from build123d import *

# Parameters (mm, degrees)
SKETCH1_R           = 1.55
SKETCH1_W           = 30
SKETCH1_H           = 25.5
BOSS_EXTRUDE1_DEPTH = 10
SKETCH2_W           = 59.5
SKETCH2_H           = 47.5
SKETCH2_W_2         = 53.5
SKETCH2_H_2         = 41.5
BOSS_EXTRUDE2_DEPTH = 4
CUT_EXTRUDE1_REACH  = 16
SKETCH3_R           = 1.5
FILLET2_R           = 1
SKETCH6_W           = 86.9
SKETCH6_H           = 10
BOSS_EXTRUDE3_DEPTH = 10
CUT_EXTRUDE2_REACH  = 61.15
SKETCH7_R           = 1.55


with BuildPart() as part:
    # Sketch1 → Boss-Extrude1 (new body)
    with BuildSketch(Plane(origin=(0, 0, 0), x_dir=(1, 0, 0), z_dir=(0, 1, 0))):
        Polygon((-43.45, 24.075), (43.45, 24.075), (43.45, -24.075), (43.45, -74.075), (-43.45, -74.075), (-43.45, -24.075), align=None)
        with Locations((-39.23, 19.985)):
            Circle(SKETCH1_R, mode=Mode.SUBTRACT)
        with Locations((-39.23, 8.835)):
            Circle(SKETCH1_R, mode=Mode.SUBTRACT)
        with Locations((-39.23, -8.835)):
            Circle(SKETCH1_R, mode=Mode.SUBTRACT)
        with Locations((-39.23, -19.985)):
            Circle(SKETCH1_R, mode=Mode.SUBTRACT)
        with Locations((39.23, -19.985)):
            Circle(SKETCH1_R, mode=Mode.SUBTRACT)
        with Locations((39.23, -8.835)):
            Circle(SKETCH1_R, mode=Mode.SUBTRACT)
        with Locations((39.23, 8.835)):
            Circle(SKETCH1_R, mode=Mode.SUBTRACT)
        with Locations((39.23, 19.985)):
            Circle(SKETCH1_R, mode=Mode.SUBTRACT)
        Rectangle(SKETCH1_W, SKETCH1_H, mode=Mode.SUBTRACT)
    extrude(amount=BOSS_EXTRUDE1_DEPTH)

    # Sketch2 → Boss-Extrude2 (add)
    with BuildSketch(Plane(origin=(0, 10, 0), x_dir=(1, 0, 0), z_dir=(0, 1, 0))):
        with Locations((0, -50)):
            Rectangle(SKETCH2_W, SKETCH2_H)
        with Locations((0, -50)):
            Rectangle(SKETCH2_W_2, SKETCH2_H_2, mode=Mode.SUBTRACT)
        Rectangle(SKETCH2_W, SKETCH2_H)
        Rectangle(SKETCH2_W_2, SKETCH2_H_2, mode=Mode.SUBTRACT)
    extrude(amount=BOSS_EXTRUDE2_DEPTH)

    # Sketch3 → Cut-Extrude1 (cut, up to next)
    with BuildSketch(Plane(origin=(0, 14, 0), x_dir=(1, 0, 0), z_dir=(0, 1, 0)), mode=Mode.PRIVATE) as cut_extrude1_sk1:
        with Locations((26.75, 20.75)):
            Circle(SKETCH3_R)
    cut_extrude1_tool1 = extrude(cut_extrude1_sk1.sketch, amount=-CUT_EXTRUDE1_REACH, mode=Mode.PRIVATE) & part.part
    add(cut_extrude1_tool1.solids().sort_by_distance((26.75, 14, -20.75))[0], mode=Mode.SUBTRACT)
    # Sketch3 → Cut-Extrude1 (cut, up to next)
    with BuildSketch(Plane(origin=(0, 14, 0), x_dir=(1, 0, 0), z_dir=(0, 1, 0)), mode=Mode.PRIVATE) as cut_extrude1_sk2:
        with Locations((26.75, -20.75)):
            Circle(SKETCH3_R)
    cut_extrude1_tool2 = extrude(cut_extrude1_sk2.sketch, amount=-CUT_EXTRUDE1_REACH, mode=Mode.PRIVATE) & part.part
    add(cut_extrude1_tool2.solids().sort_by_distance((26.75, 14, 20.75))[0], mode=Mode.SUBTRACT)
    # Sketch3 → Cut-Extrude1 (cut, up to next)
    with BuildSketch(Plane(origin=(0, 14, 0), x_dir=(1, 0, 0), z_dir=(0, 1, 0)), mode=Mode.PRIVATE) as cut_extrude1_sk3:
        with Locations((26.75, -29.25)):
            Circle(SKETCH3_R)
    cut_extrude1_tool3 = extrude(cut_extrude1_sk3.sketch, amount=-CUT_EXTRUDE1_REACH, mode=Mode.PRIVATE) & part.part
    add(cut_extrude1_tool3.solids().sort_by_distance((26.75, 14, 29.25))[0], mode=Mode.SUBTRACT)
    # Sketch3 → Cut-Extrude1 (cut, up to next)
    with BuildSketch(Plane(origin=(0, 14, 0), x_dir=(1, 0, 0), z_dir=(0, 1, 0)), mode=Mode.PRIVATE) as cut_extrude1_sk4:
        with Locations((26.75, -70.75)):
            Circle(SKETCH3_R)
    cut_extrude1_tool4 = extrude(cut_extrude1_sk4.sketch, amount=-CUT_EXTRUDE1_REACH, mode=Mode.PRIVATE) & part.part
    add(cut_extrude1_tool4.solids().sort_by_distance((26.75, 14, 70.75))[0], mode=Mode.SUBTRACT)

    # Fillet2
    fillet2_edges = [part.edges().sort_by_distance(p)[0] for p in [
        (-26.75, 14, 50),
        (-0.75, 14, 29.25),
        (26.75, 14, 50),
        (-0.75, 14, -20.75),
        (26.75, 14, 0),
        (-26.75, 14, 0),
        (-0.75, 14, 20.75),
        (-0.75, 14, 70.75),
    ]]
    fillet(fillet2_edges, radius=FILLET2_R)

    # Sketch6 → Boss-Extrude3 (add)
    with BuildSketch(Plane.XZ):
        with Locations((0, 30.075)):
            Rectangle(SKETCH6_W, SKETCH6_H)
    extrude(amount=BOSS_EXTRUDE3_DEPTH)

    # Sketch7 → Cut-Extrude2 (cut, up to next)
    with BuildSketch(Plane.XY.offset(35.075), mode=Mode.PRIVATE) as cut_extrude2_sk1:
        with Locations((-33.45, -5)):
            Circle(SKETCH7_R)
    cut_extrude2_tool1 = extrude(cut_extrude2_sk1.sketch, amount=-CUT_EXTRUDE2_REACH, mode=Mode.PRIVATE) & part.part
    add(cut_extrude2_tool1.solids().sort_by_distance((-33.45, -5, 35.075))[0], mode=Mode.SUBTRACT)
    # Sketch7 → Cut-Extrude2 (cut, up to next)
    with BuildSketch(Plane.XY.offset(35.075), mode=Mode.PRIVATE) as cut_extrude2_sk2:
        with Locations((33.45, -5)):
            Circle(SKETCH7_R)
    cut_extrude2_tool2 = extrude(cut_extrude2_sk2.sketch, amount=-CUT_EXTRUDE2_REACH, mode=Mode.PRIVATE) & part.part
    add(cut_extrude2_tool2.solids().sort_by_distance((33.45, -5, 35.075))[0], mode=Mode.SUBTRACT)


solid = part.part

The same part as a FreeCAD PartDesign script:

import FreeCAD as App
import Part
import Sketcher

V = App.Vector


def edges_at(feature, points):
    """Names of the edges that pass closest to the given points."""
    edges = feature.Shape.Edges
    near = lambda p: min(range(len(edges)), key=lambda i: edges[i].distToShape(Part.Vertex(*p))[0])
    return sorted({f"Edge{near(p) + 1}" for p in points})

doc = App.newDocument("Part")
body = doc.addObject("PartDesign::Body", "Body")

# Sketch on XZ plane
sketch1 = doc.addObject("Sketcher::SketchObject", "Sketch")
body.addObject(sketch1)
sketch1.AttachmentSupport = (doc.XZ_Plane, [""])
sketch1.MapMode = "FlatFace"
sketch1.addGeometry([
    Part.LineSegment(V(43.5, -24.1, 0), V(-43.5, -24.1, 0)),  # 0
    Part.LineSegment(V(-43.5, -24.1, 0), V(-43.5, 74.1, 0)),  # 1
    Part.LineSegment(V(-43.5, 74.1, 0), V(43.5, 74.1, 0)),  # 2
    Part.LineSegment(V(43.5, 74.1, 0), V(43.5, -24.1, 0)),  # 3
    Part.Circle(V(39.2, 20, 0), V(0, 0, 1), 1.6),  # 4
    Part.Circle(V(39.2, 8.8, 0), V(0, 0, 1), 1.6),  # 5
    Part.Circle(V(-39.2, 20, 0), V(0, 0, 1), 1.6),  # 6
    Part.LineSegment(V(-15, 12.8, 0), V(-15, -12.8, 0)),  # 7
    Part.LineSegment(V(-15, -12.8, 0), V(15, -12.8, 0)),  # 8
    Part.LineSegment(V(15, -12.8, 0), V(15, 12.8, 0)),  # 9
    Part.LineSegment(V(15, 12.8, 0), V(-15, 12.8, 0)),  # 10
    Part.Circle(V(-39.2, 8.8, 0), V(0, 0, 1), 1.6),  # 11
    Part.Circle(V(39.2, -8.8, 0), V(0, 0, 1), 1.6),  # 12
    Part.Circle(V(39.2, -20, 0), V(0, 0, 1), 1.6),  # 13
    Part.Circle(V(-39.2, -8.8, 0), V(0, 0, 1), 1.6),  # 14
    Part.Circle(V(-39.2, -20, 0), V(0, 0, 1), 1.6),  # 15
], False)
sketch1.addConstraint([
    Sketcher.Constraint("Coincident", 0, 2, 1, 1),
    Sketcher.Constraint("Coincident", 1, 2, 2, 1),
    Sketcher.Constraint("Coincident", 2, 2, 3, 1),
    Sketcher.Constraint("Coincident", 3, 2, 0, 1),
    Sketcher.Constraint("Coincident", 7, 2, 8, 1),
    Sketcher.Constraint("Coincident", 8, 2, 9, 1),
    Sketcher.Constraint("Coincident", 9, 2, 10, 1),
    Sketcher.Constraint("Coincident", 10, 2, 7, 1),
    Sketcher.Constraint("Horizontal", 0),
    Sketcher.Constraint("Vertical", 1),
    Sketcher.Constraint("Horizontal", 2),
    Sketcher.Constraint("Vertical", 3),
    Sketcher.Constraint("Vertical", 7),
    Sketcher.Constraint("Horizontal", 8),
    Sketcher.Constraint("Vertical", 9),
    Sketcher.Constraint("Horizontal", 10),
    Sketcher.Constraint("Equal", 4, 5),
    Sketcher.Constraint("Equal", 5, 6),
    Sketcher.Constraint("Equal", 6, 11),
    Sketcher.Constraint("Equal", 11, 12),
    Sketcher.Constraint("Equal", 12, 13),
    Sketcher.Constraint("Equal", 13, 14),
    Sketcher.Constraint("Equal", 14, 15),
    Sketcher.Constraint("Symmetric", 11, 3, 12, 3, -1, 1),
    Sketcher.Constraint("Symmetric", 6, 3, 13, 3, -1, 1),
    Sketcher.Constraint("Symmetric", 5, 3, 14, 3, -1, 1),
    Sketcher.Constraint("Symmetric", 4, 3, 15, 3, -1, 1),
    Sketcher.Constraint("Symmetric", 7, 2, 9, 2, -1, 1),
    Sketcher.Constraint("Symmetric", 4, 3, 6, 3, -2),
    Sketcher.Constraint("Symmetric", 5, 3, 11, 3, -2),
    Sketcher.Constraint("Vertical", 4, 3, 5, 3),
    Sketcher.Constraint("Diameter", 4, 3.1),
    Sketcher.Constraint("DistanceX", 8, 1, 8, 2, 30.0),
    Sketcher.Constraint("DistanceX", 0, 2, 0, 1, 86.9),
    Sketcher.Constraint("DistanceY", 7, 2, 7, 1, 25.5),
    Sketcher.Constraint("DistanceY", 1, 1, 1, 2, 98.15),
    Sketcher.Constraint("DistanceX", -1, 1, 4, 3, 39.23),
    Sketcher.Constraint("DistanceX", 0, 2, -1, 1, 43.45),
    Sketcher.Constraint("DistanceY", 5, 3, 4, 3, 11.15),
    Sketcher.Constraint("DistanceY", 12, 3, 5, 3, 17.67),
    Sketcher.Constraint("DistanceY", 0, 2, 15, 3, 4.09),
])
pad1 = doc.addObject("PartDesign::Pad", "Pad")
body.addObject(pad1)
pad1.Profile = sketch1
pad1.Length = 10
pad1.Reversed = True

# Sketch on XZ plane
sketch2 = doc.addObject("Sketcher::SketchObject", "Sketch001")
body.addObject(sketch2)
sketch2.AttachmentSupport = (doc.XZ_Plane, [""])
sketch2.MapMode = "FlatFace"
sketch2.AttachmentOffset = App.Placement(V(0, 0, -10), App.Rotation())
sketch2.addGeometry([
    Part.LineSegment(V(-30, 26, 0), V(-30, 74, 0)),  # 0
    Part.LineSegment(V(-30, 74, 0), V(30, 74, 0)),  # 1
    Part.LineSegment(V(30, 74, 0), V(30, 26, 0)),  # 2
    Part.LineSegment(V(30, 26, 0), V(-30, 26, 0)),  # 3
    Part.LineSegment(V(27, 71, 0), V(-27, 71, 0)),  # 4
    Part.LineSegment(V(-27, 71, 0), V(-27, 29, 0)),  # 5
    Part.LineSegment(V(-27, 29, 0), V(27, 29, 0)),  # 6
    Part.LineSegment(V(27, 29, 0), V(27, 71, 0)),  # 7
    Part.LineSegment(V(-30, -24, 0), V(-30, 24, 0)),  # 8
    Part.LineSegment(V(-30, 24, 0), V(30, 24, 0)),  # 9
    Part.LineSegment(V(30, 24, 0), V(30, -24, 0)),  # 10
    Part.LineSegment(V(30, -24, 0), V(-30, -24, 0)),  # 11
    Part.LineSegment(V(27, 21, 0), V(-27, 21, 0)),  # 12
    Part.LineSegment(V(-27, 21, 0), V(-27, -21, 0)),  # 13
    Part.LineSegment(V(-27, -21, 0), V(27, -21, 0)),  # 14
    Part.LineSegment(V(27, -21, 0), V(27, 21, 0)),  # 15
], False)
sketch2.addConstraint([
    Sketcher.Constraint("Coincident", 0, 2, 1, 1),
    Sketcher.Constraint("Coincident", 1, 2, 2, 1),
    Sketcher.Constraint("Coincident", 2, 2, 3, 1),
    Sketcher.Constraint("Coincident", 3, 2, 0, 1),
    Sketcher.Constraint("Coincident", 4, 2, 5, 1),
    Sketcher.Constraint("Coincident", 5, 2, 6, 1),
    Sketcher.Constraint("Coincident", 6, 2, 7, 1),
    Sketcher.Constraint("Coincident", 7, 2, 4, 1),
    Sketcher.Constraint("Coincident", 8, 2, 9, 1),
    Sketcher.Constraint("Coincident", 9, 2, 10, 1),
    Sketcher.Constraint("Coincident", 10, 2, 11, 1),
    Sketcher.Constraint("Coincident", 11, 2, 8, 1),
    Sketcher.Constraint("Coincident", 12, 2, 13, 1),
    Sketcher.Constraint("Coincident", 13, 2, 14, 1),
    Sketcher.Constraint("Coincident", 14, 2, 15, 1),
    Sketcher.Constraint("Coincident", 15, 2, 12, 1),
    Sketcher.Constraint("Vertical", 0),
    Sketcher.Constraint("Horizontal", 1),
    Sketcher.Constraint("Vertical", 2),
    Sketcher.Constraint("Horizontal", 3),
    Sketcher.Constraint("Horizontal", 4),
    Sketcher.Constraint("Vertical", 5),
    Sketcher.Constraint("Horizontal", 6),
    Sketcher.Constraint("Vertical", 7),
    Sketcher.Constraint("Vertical", 8),
    Sketcher.Constraint("Horizontal", 9),
    Sketcher.Constraint("Vertical", 10),
    Sketcher.Constraint("Horizontal", 11),
    Sketcher.Constraint("Horizontal", 12),
    Sketcher.Constraint("Vertical", 13),
    Sketcher.Constraint("Horizontal", 14),
    Sketcher.Constraint("Vertical", 15),
    Sketcher.Constraint("Symmetric", 8, 2, 10, 2, -1, 1),
    Sketcher.Constraint("Symmetric", 12, 2, 14, 2, -1, 1),
    Sketcher.Constraint("Vertical", 3, 2, 8, 2),
    Sketcher.Constraint("Vertical", 2, 2, 9, 2),
    Sketcher.Constraint("Vertical", 5, 2, 12, 2),
    Sketcher.Constraint("Vertical", 7, 2, 14, 2),
    Sketcher.Constraint("Equal", 2, 8),
    Sketcher.Constraint("Equal", 7, 13),
    Sketcher.Constraint("DistanceX", 1, 1, 1, 2, 59.5),
    Sketcher.Constraint("DistanceX", 4, 2, 4, 1, 53.5),
    Sketcher.Constraint("DistanceY", 0, 1, 0, 2, 47.5),
    Sketcher.Constraint("DistanceY", 5, 2, 5, 1, 41.5),
    Sketcher.Constraint("DistanceY", 4, 2, 0, 2, 3.0),
    Sketcher.Constraint("DistanceY", 8, 2, 4, 2, 47.0),
])
pad2 = doc.addObject("PartDesign::Pad", "Pad001")
body.addObject(pad2)
pad2.Profile = sketch2
pad2.Length = 4
pad2.Reversed = True

# Sketch on XZ plane
sketch3 = doc.addObject("Sketcher::SketchObject", "Sketch002")
body.addObject(sketch3)
sketch3.AttachmentSupport = (doc.XZ_Plane, [""])
sketch3.MapMode = "FlatFace"
sketch3.AttachmentOffset = App.Placement(V(0, 0, -14), App.Rotation())
sketch3.addGeometry(Part.Circle(V(26.8, -20.8, 0), V(0, 0, 1), 1.5), False)
sketch3.addConstraint([
    Sketcher.Constraint("Diameter", 0, 3.0),
    Sketcher.Constraint("DistanceX", -1, 1, 0, 3, 26.75),
    Sketcher.Constraint("DistanceY", 0, 3, -1, 1, 20.75),
])
pocket1 = doc.addObject("PartDesign::Pocket", "Pocket")
body.addObject(pocket1)
pocket1.Profile = sketch3
pocket1.Length = 14
pocket1.Reversed = True

# Sketch on XZ plane
sketch4 = doc.addObject("Sketcher::SketchObject", "Sketch003")
body.addObject(sketch4)
sketch4.AttachmentSupport = (doc.XZ_Plane, [""])
sketch4.MapMode = "FlatFace"
sketch4.AttachmentOffset = App.Placement(V(0, 0, -14), App.Rotation())
sketch4.addGeometry(Part.Circle(V(26.8, 20.8, 0), V(0, 0, 1), 1.5), False)
sketch4.addConstraint([
    Sketcher.Constraint("Diameter", 0, 3.0),
    Sketcher.Constraint("DistanceX", -1, 1, 0, 3, 26.75),
    Sketcher.Constraint("DistanceY", -1, 1, 0, 3, 20.75),
])
pocket2 = doc.addObject("PartDesign::Pocket", "Pocket001")
body.addObject(pocket2)
pocket2.Profile = sketch4
pocket2.Length = 14
pocket2.Reversed = True

# Sketch on XZ plane
sketch5 = doc.addObject("Sketcher::SketchObject", "Sketch004")
body.addObject(sketch5)
sketch5.AttachmentSupport = (doc.XZ_Plane, [""])
sketch5.MapMode = "FlatFace"
sketch5.AttachmentOffset = App.Placement(V(0, 0, -14), App.Rotation())
sketch5.addGeometry(Part.Circle(V(26.8, 29.2, 0), V(0, 0, 1), 1.5), False)
sketch5.addConstraint([
    Sketcher.Constraint("Diameter", 0, 3.0),
    Sketcher.Constraint("DistanceX", -1, 1, 0, 3, 26.75),
    Sketcher.Constraint("DistanceY", -1, 1, 0, 3, 29.25),
])
pocket3 = doc.addObject("PartDesign::Pocket", "Pocket002")
body.addObject(pocket3)
pocket3.Profile = sketch5
pocket3.Length = 14
pocket3.Reversed = True

# Sketch on XZ plane
sketch6 = doc.addObject("Sketcher::SketchObject", "Sketch005")
body.addObject(sketch6)
sketch6.AttachmentSupport = (doc.XZ_Plane, [""])
sketch6.MapMode = "FlatFace"
sketch6.AttachmentOffset = App.Placement(V(0, 0, -14), App.Rotation())
sketch6.addGeometry(Part.Circle(V(26.8, 70.8, 0), V(0, 0, 1), 1.5), False)
sketch6.addConstraint([
    Sketcher.Constraint("Diameter", 0, 3.0),
    Sketcher.Constraint("DistanceX", -1, 1, 0, 3, 26.75),
    Sketcher.Constraint("DistanceY", -1, 1, 0, 3, 70.75),
])
pocket4 = doc.addObject("PartDesign::Pocket", "Pocket003")
body.addObject(pocket4)
pocket4.Profile = sketch6
pocket4.Length = 14
pocket4.Reversed = True
doc.recompute()

fillet = doc.addObject("PartDesign::Fillet", "Fillet")
body.addObject(fillet)
fillet.Base = (pocket4, edges_at(pocket4, [
    (-26.75, 14, 50),
    (-0.75, 14, 29.25),
    (26.75, 14, 50),
    (-0.75, 14, -20.75),
    (26.75, 14, 0),
    (-26.75, 14, 0),
    (-0.75, 14, 20.75),
    (-0.75, 14, 70.75),
]))
fillet.Radius = 1

# Sketch on XZ plane
sketch7 = doc.addObject("Sketcher::SketchObject", "Sketch006")
body.addObject(sketch7)
sketch7.AttachmentSupport = (doc.XZ_Plane, [""])
sketch7.MapMode = "FlatFace"
sketch7.addGeometry([
    Part.LineSegment(V(-43, 35, 0), V(-43, 25, 0)),
    Part.LineSegment(V(-43, 25, 0), V(43, 25, 0)),
    Part.LineSegment(V(43, 25, 0), V(43, 35, 0)),
    Part.LineSegment(V(43, 35, 0), V(-43, 35, 0)),
], False)
sketch7.addConstraint([
    Sketcher.Constraint("Coincident", 0, 2, 1, 1),
    Sketcher.Constraint("Coincident", 1, 2, 2, 1),
    Sketcher.Constraint("Coincident", 2, 2, 3, 1),
    Sketcher.Constraint("Coincident", 3, 2, 0, 1),
    Sketcher.Constraint("Vertical", 0),
    Sketcher.Constraint("Horizontal", 1),
    Sketcher.Constraint("Vertical", 2),
    Sketcher.Constraint("Horizontal", 3),
    Sketcher.Constraint("DistanceY", 0, 2, 0, 1, 10.0),
    Sketcher.Constraint("DistanceX", 1, 1, 1, 2, 86.9),
    Sketcher.Constraint("DistanceX", 0, 2, -1, 1, 43.45),
    Sketcher.Constraint("DistanceY", -1, 1, 0, 2, 25.075),
])
pad3 = doc.addObject("PartDesign::Pad", "Pad002")
body.addObject(pad3)
pad3.Profile = sketch7
pad3.Length = 10

# Sketch on XY plane
sketch8 = doc.addObject("Sketcher::SketchObject", "Sketch007")
body.addObject(sketch8)
sketch8.AttachmentSupport = (doc.XY_Plane, [""])
sketch8.MapMode = "FlatFace"
sketch8.AttachmentOffset = App.Placement(V(0, 0, 35.075), App.Rotation())
sketch8.addGeometry(Part.Circle(V(-33.5, -5, 0), V(0, 0, 1), 1.6), False)
sketch8.addConstraint([
    Sketcher.Constraint("Diameter", 0, 3.1),
    Sketcher.Constraint("DistanceY", 0, 3, -1, 1, 5.0),
    Sketcher.Constraint("DistanceX", 0, 3, -1, 1, 33.45),
])
pocket5 = doc.addObject("PartDesign::Pocket", "Pocket004")
body.addObject(pocket5)
pocket5.Profile = sketch8
pocket5.Type = "UpToFirst"

# Sketch on XY plane
sketch9 = doc.addObject("Sketcher::SketchObject", "Sketch008")
body.addObject(sketch9)
sketch9.AttachmentSupport = (doc.XY_Plane, [""])
sketch9.MapMode = "FlatFace"
sketch9.AttachmentOffset = App.Placement(V(0, 0, 35.075), App.Rotation())
sketch9.addGeometry(Part.Circle(V(33.5, -5, 0), V(0, 0, 1), 1.6), False)
sketch9.addConstraint([
    Sketcher.Constraint("Diameter", 0, 3.1),
    Sketcher.Constraint("DistanceY", 0, 3, -1, 1, 5.0),
    Sketcher.Constraint("DistanceX", -1, 1, 0, 3, 33.45),
])
pocket6 = doc.addObject("PartDesign::Pocket", "Pocket005")
body.addObject(pocket6)
pocket6.Profile = sketch9
pocket6.Type = "UpToFirst"

doc.recompute()
